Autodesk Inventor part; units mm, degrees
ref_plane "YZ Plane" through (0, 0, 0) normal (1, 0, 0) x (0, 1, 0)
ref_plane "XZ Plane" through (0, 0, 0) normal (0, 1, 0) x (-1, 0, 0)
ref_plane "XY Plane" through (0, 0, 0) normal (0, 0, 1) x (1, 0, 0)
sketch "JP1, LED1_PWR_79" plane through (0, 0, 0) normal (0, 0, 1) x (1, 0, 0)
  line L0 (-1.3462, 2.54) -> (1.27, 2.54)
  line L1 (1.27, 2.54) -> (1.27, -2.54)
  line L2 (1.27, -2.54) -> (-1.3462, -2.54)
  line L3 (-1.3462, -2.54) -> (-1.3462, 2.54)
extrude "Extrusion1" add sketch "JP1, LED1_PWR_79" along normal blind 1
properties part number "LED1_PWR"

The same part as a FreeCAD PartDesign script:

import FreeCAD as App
import Part
import Sketcher
Q = App.Units.Quantity


def add_polygon(sketch, points):
    """Adds a closed chain of lines whose ends are joined by coincident constraints."""
    first, n = sketch.GeometryCount, len(points)
    for a, b in zip(points, points[1:] + points[:1]):
        sketch.addGeometry(Part.LineSegment(App.Vector(*a, 0), App.Vector(*b, 0)), False)
    for i in range(n):
        sketch.addConstraint(Sketcher.Constraint("Coincident", first + i, 2, first + (i + 1) % n, 1))

doc = App.newDocument("Part")
params = doc.addObject("Spreadsheet::Sheet", "Params")
for row, (alias, value) in enumerate([
    ("sketch1_height", "0.2 in"),
    ("sketch1_width", "0.103 in"),
    ("pad1_length", "1 mm"),
], start=1):
    params.set(f"A{row}", alias)
    params.set(f"B{row}", "=" + value)
    params.setAlias(f"B{row}", alias)

body = doc.addObject("PartDesign::Body", "Body")

# Sketch on XY plane
sketch1 = body.newObject("Sketcher::SketchObject", "Sketch")
sketch1.AttachmentSupport = (doc.getObject("XY_Plane"), [""])
sketch1.MapMode = "FlatFace"
add_polygon(sketch1, [(1.3, 2.5), (-1.3, 2.5), (-1.3, -2.5), (1.3, -2.5)])  # lines 0-3
sketch1.addConstraint(Sketcher.Constraint("Horizontal", 0))
sketch1.addConstraint(Sketcher.Constraint("Vertical", 1))
sketch1.addConstraint(Sketcher.Constraint("Horizontal", 2))
sketch1.addConstraint(Sketcher.Constraint("Vertical", 3))
sketch1.addConstraint(Sketcher.Constraint("DistanceY", 1, 2, 1, 1, Q("0.2 in")))
sketch1.addConstraint(Sketcher.Constraint("DistanceY", -1, 1, 0, 2, Q("0.1 in")))
sketch1.addConstraint(Sketcher.Constraint("DistanceX", 0, 2, 0, 1, Q("0.103 in")))
sketch1.addConstraint(Sketcher.Constraint("DistanceX", -1, 1, 2, 2, Q("0.05 in")))
sketch1.setExpression("Constraints[8]", "Params.sketch1_height")
sketch1.setExpression("Constraints[10]", "Params.sketch1_width")
pad1 = body.newObject("PartDesign::Pad", "Pad")
pad1.Profile = sketch1
pad1.setExpression("Length", "Params.pad1_length")

doc.recompute()
